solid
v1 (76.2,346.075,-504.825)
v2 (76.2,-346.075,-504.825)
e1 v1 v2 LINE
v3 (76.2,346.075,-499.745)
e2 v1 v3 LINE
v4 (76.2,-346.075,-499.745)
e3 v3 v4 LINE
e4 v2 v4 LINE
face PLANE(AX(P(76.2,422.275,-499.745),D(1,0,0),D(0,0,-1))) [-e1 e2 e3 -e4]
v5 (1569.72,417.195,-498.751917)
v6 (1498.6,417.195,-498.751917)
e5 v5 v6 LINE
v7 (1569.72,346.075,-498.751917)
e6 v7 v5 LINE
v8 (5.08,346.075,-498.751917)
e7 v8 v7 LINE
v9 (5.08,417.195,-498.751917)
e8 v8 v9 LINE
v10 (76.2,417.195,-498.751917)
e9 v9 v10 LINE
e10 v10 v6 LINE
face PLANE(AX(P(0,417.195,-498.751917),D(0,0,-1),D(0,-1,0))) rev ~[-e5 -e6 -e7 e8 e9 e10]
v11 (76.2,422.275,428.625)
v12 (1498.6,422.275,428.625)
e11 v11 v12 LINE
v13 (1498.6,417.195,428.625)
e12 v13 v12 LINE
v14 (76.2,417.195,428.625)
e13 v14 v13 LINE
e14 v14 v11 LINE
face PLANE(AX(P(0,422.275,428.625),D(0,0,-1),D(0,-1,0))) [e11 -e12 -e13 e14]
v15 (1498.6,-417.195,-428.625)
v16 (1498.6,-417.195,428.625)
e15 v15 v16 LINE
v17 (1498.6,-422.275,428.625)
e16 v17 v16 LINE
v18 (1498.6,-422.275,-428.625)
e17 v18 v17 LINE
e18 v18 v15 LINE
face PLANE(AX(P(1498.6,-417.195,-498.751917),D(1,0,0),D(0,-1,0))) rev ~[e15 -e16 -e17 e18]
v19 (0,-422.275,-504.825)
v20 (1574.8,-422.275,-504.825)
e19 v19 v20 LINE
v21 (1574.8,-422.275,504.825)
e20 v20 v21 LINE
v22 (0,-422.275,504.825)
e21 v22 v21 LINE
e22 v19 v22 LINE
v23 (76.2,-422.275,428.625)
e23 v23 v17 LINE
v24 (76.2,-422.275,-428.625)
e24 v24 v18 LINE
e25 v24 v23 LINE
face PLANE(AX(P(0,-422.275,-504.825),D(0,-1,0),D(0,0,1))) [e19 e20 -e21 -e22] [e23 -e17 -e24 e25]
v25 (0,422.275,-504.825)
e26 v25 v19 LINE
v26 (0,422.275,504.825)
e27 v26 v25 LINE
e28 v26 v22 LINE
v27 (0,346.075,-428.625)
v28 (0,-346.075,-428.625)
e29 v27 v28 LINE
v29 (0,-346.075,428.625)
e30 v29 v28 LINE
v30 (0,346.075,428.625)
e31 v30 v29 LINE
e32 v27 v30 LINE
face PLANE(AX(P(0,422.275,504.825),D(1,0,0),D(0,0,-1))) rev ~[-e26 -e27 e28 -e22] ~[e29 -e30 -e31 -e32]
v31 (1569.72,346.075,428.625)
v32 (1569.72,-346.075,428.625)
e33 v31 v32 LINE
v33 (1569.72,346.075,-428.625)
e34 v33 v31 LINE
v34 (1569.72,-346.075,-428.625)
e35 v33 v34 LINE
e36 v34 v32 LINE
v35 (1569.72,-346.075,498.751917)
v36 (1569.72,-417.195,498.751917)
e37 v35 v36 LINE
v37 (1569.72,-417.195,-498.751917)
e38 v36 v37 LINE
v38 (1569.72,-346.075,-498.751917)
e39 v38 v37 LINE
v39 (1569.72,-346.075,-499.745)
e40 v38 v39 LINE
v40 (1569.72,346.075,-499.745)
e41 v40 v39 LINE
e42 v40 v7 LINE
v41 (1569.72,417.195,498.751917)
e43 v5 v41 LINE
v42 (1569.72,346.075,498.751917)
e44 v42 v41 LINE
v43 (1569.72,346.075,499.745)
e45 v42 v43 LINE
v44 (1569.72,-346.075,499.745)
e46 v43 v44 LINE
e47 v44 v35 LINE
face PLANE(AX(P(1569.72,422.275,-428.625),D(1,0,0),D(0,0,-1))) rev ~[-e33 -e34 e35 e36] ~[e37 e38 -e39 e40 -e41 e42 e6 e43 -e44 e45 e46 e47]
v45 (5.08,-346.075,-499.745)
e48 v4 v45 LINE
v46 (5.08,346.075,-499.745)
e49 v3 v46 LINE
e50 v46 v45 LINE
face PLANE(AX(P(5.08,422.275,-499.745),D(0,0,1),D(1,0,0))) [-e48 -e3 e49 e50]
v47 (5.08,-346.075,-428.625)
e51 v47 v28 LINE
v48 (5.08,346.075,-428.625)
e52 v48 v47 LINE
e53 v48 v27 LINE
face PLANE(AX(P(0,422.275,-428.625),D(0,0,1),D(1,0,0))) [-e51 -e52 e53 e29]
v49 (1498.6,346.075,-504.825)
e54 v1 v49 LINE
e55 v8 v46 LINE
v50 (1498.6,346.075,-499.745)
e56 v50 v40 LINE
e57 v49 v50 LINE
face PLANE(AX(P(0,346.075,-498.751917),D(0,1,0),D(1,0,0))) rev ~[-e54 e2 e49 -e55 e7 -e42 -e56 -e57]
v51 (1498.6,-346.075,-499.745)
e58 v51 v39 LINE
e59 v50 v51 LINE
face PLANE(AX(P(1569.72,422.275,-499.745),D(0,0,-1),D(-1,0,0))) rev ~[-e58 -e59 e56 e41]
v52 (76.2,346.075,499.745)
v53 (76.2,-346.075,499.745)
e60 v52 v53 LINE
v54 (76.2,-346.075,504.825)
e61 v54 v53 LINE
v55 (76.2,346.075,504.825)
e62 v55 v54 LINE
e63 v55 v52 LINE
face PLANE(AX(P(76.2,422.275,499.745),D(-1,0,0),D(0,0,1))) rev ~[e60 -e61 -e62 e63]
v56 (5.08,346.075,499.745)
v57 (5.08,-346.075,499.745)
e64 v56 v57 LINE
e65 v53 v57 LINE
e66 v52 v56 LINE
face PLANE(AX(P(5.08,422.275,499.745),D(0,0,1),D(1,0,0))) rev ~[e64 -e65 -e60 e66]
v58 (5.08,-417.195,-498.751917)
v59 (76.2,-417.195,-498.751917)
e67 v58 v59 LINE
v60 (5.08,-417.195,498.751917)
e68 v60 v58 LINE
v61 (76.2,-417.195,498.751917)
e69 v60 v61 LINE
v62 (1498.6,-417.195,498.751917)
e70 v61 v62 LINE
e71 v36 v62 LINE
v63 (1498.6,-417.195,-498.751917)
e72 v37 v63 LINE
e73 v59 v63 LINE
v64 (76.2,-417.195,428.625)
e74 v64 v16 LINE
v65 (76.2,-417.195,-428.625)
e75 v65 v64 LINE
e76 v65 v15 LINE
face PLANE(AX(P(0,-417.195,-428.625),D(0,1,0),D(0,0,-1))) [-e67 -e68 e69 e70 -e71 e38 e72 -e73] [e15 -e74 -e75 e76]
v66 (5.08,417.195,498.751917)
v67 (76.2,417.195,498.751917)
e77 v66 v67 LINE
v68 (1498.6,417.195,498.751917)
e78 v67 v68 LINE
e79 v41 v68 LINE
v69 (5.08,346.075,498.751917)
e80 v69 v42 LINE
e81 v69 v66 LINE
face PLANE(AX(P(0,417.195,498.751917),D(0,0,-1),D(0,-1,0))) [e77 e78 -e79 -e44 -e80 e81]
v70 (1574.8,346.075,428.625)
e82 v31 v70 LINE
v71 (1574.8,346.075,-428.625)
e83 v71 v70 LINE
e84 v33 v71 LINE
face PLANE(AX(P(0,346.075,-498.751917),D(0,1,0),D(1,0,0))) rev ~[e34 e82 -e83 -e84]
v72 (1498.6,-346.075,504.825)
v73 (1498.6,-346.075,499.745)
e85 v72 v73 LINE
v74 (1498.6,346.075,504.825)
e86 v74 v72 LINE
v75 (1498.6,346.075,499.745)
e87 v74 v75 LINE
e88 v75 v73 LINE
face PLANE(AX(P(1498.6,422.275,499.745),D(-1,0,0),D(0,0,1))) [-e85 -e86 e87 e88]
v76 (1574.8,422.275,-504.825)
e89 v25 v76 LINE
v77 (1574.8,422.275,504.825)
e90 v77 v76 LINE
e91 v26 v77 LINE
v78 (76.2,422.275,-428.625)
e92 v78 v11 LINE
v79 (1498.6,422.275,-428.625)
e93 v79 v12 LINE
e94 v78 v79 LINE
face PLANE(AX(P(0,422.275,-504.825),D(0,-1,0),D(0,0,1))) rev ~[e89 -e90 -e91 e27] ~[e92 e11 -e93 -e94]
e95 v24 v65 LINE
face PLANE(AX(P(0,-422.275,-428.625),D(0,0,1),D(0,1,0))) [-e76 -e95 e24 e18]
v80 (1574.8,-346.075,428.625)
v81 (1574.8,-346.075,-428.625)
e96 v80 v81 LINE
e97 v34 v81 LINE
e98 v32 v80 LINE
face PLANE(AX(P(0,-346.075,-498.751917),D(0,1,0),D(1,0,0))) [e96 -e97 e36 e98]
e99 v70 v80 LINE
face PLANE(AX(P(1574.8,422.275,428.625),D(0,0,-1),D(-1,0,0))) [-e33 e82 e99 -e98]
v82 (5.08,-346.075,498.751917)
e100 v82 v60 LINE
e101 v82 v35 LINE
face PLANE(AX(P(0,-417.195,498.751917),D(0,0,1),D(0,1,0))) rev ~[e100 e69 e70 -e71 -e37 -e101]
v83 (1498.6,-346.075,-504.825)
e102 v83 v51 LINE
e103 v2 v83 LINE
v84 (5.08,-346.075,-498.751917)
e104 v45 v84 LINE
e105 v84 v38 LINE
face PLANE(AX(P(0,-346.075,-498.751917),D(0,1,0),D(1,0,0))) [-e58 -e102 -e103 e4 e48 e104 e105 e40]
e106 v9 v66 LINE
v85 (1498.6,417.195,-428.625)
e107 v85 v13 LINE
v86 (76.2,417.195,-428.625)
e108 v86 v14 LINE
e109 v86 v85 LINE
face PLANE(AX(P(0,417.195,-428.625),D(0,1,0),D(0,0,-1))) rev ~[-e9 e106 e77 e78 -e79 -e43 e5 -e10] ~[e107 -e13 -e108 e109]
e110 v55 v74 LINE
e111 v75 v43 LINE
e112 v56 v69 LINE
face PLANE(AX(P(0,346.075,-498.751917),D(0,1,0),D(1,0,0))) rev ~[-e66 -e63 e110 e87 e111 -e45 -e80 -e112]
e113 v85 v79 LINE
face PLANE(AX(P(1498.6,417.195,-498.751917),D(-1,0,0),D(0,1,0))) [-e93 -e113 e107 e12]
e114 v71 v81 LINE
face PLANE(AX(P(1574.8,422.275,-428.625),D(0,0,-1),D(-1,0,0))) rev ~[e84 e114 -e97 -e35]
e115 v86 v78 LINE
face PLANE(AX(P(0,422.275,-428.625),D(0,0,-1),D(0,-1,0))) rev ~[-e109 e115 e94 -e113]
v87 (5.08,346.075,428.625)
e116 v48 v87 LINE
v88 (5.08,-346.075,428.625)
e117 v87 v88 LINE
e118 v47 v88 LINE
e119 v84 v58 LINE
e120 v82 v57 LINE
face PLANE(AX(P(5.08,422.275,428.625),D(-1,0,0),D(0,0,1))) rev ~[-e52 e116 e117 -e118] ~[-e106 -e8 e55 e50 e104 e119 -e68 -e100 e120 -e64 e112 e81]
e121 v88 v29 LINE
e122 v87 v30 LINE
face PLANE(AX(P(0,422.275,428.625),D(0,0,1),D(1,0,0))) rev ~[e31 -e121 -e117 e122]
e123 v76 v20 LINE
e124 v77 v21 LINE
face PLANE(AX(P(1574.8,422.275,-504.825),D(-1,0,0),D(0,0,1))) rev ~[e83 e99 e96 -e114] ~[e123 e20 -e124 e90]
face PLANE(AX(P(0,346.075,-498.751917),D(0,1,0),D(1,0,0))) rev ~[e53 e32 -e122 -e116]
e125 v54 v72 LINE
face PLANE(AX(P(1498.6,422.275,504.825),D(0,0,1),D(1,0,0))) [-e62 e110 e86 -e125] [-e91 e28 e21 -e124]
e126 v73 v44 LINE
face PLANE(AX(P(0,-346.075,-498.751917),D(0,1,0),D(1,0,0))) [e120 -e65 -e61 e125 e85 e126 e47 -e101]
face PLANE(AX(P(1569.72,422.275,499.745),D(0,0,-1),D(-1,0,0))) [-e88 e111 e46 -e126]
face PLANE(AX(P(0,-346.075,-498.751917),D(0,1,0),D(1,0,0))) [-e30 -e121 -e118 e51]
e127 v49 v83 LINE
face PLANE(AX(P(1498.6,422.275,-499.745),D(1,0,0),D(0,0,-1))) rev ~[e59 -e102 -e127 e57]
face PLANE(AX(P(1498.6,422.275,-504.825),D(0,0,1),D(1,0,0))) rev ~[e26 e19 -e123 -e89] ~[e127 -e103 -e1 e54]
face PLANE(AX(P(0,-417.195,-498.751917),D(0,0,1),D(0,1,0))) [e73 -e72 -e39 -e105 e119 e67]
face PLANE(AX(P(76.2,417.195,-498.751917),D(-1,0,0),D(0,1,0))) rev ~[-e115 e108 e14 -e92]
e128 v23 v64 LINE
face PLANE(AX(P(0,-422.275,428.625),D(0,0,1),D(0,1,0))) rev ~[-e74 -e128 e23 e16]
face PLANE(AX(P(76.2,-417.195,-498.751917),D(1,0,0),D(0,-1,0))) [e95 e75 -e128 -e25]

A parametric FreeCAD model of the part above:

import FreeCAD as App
import Part
import Sketcher

V = App.Vector
Q = App.Units.Quantity


def add_polygon(sketch, points):
    """Adds a closed chain of lines whose ends are joined by coincident constraints."""
    first, n = sketch.GeometryCount, len(points)
    for a, b in zip(points, points[1:] + points[:1]):
        sketch.addGeometry(Part.LineSegment(App.Vector(*a, 0), App.Vector(*b, 0)), False)
    for i in range(n):
        sketch.addConstraint(Sketcher.Constraint("Coincident", first + i, 2, first + (i + 1) % n, 1))

doc = App.newDocument("Part")
params = doc.addObject("Spreadsheet::Sheet", "Params")
for row, (alias, value) in enumerate([
    ("sketch1_width", "3 in"),
    ("sketch1_width2", "0.2 in"),
    ("pad1_length", "62 in"),
    ("sketch2_width", "3 in"),
    ("sketch2_width2", "2.8 in"),
    ("pad2_length", "62 in"),
    ("sketch3_width", "3 in"),
    ("sketch3_width2", "2.8 in"),
    ("pad3_length", "62 in"),
    ("sketch4_width", "3 in"),
    ("sketch4_width2", "2.8 in"),
    ("pad4_length", "62 in"),
    ("sketch5_width", "3 in"),
    ("sketch5_width2", "2.8 in"),
    ("pad5_length", "997.503834 mm"),
    ("sketch6_width", "3 in"),
    ("sketch6_width2", "0.2 in"),
    ("pad6_length", "30.25 in"),
    ("sketch7_width", "3 in"),
    ("sketch7_width2", "2.8 in"),
    ("pad7_length", "30.25 in"),
    ("sketch8_width", "3 in"),
    ("sketch8_width2", "0.2 in"),
    ("pad8_length", "30.25 in"),
    ("sketch9_width", "3 in"),
    ("sketch9_width2", "2.8 in"),
    ("pad9_length", "30.25 in"),
], start=1):
    params.set(f"A{row}", alias)
    params.set(f"B{row}", "=" + value)
    params.setAlias(f"B{row}", alias)

body = doc.addObject("PartDesign::Body", "Body")

# Sketch on YZ plane
sketch1 = body.newObject("Sketcher::SketchObject", "Sketch")
sketch1.AttachmentSupport = (doc.getObject("YZ_Plane"), [""])
sketch1.MapMode = "FlatFace"
add_polygon(sketch1, [(-346.075, 504.825), (-422.275, 504.825), (-422.275, 428.625), (-417.195, 428.625), (-417.195, 498.751917), (-346.075, 498.751917)])  # lines 0-5
sketch1.addConstraint([
    Sketcher.Constraint("Horizontal", 0),
    Sketcher.Constraint("Vertical", 1),
    Sketcher.Constraint("Horizontal", 2),
    Sketcher.Constraint("Vertical", 3),
    Sketcher.Constraint("Horizontal", 4),
    Sketcher.Constraint("Vertical", 5),
    Sketcher.Constraint("Equal", 0, 1),
    Sketcher.Constraint("DistanceX", 0, 2, 0, 1, Q("3 in")),
    Sketcher.Constraint("DistanceX", 2, 1, 2, 2, Q("0.2 in")),
    Sketcher.Constraint("DistanceX", 0, 2, -1, 1, Q("16.625 in")),
    Sketcher.Constraint("DistanceY", -1, 1, 0, 2, Q("19.875 in")),
    Sketcher.Constraint("DistanceY", 3, 1, 3, 2, Q("70.126917 mm")),
])
sketch1.setExpression("Constraints[13]", "Params.sketch1_width")
sketch1.setExpression("Constraints[14]", "Params.sketch1_width2")
pad1 = body.newObject("PartDesign::Pad", "Pad")
pad1.Profile = sketch1
pad1.setExpression("Length", "Params.pad1_length")
body2 = doc.addObject("PartDesign::Body", "Body001")

# Sketch on YZ plane
sketch2 = body2.newObject("Sketcher::SketchObject", "Sketch001")
sketch2.AttachmentSupport = (doc.getObject("YZ_Plane001"), [""])
sketch2.MapMode = "FlatFace"
add_polygon(sketch2, [(-346.075, -498.751917), (-417.195, -498.751917), (-417.195, -428.625), (-422.275, -428.625), (-422.275, -504.825), (-346.075, -504.825)])  # lines 0-5
sketch2.addConstraint([
    Sketcher.Constraint("Horizontal", 0),
    Sketcher.Constraint("Vertical", 1),
    Sketcher.Constraint("Horizontal", 2),
    Sketcher.Constraint("Vertical", 3),
    Sketcher.Constraint("Horizontal", 4),
    Sketcher.Constraint("Vertical", 5),
    Sketcher.Constraint("Equal", 4, 3),
    Sketcher.Constraint("DistanceX", 4, 1, 4, 2, Q("3 in")),
    Sketcher.Constraint("DistanceX", 0, 2, 0, 1, Q("2.8 in")),
    Sketcher.Constraint("DistanceX", 0, 2, -1, 1, Q("16.425 in")),
    Sketcher.Constraint("DistanceY", 1, 2, -1, 1, Q("16.875 in")),
    Sketcher.Constraint("DistanceY", 1, 1, 1, 2, Q("70.126917 mm")),
])
sketch2.setExpression("Constraints[13]", "Params.sketch2_width")
sketch2.setExpression("Constraints[14]", "Params.sketch2_width2")
pad2 = body2.newObject("PartDesign::Pad", "Pad001")
pad2.Profile = sketch2
pad2.setExpression("Length", "Params.pad2_length")
body3 = doc.addObject("PartDesign::Body", "Body002")

# Sketch on YZ plane
sketch3 = body3.newObject("Sketcher::SketchObject", "Sketch002")
sketch3.AttachmentSupport = (doc.getObject("YZ_Plane002"), [""])
sketch3.MapMode = "FlatFace"
add_polygon(sketch3, [(417.195, -428.625), (417.195, -498.751917), (346.075, -498.751917), (346.075, -504.825), (422.275, -504.825), (422.275, -428.625)])  # lines 0-5
sketch3.addConstraint([
    Sketcher.Constraint("Vertical", 0),
    Sketcher.Constraint("Horizontal", 1),
    Sketcher.Constraint("Vertical", 2),
    Sketcher.Constraint("Horizontal", 3),
    Sketcher.Constraint("Vertical", 4),
    Sketcher.Constraint("Horizontal", 5),
    Sketcher.Constraint("Equal", 3, 4),
    Sketcher.Constraint("DistanceX", 3, 1, 3, 2, Q("3 in")),
    Sketcher.Constraint("DistanceX", 1, 2, 1, 1, Q("2.8 in")),
    Sketcher.Constraint("DistanceX", -1, 1, 0, 2, Q("16.425 in")),
    Sketcher.Constraint("DistanceY", 2, 2, -1, 1, Q("19.875 in")),
    Sketcher.Constraint("DistanceY", 0, 2, 0, 1, Q("70.126917 mm")),
])
sketch3.setExpression("Constraints[13]", "Params.sketch3_width")
sketch3.setExpression("Constraints[14]", "Params.sketch3_width2")
pad3 = body3.newObject("PartDesign::Pad", "Pad002")
pad3.Profile = sketch3
pad3.setExpression("Length", "Params.pad3_length")
body4 = doc.addObject("PartDesign::Body", "Body003")

# Sketch on YZ plane
sketch4 = body4.newObject("Sketcher::SketchObject", "Sketch003")
sketch4.AttachmentSupport = (doc.getObject("YZ_Plane003"), [""])
sketch4.MapMode = "FlatFace"
add_polygon(sketch4, [(346.075, 498.751917), (417.195, 498.751917), (417.195, 428.625), (422.275, 428.625), (422.275, 504.825), (346.075, 504.825)])  # lines 0-5
sketch4.addConstraint([
    Sketcher.Constraint("Horizontal", 0),
    Sketcher.Constraint("Vertical", 1),
    Sketcher.Constraint("Horizontal", 2),
    Sketcher.Constraint("Vertical", 3),
    Sketcher.Constraint("Horizontal", 4),
    Sketcher.Constraint("Vertical", 5),
    Sketcher.Constraint("Equal", 4, 3),
    Sketcher.Constraint("DistanceX", 4, 2, 4, 1, Q("3 in")),
    Sketcher.Constraint("DistanceX", 0, 1, 0, 2, Q("2.8 in")),
    Sketcher.Constraint("DistanceX", -1, 1, 0, 2, Q("16.425 in")),
    Sketcher.Constraint("DistanceY", -1, 1, 1, 2, Q("16.875 in")),
    Sketcher.Constraint("DistanceY", 1, 2, 1, 1, Q("70.126917 mm")),
])
sketch4.setExpression("Constraints[13]", "Params.sketch4_width")
sketch4.setExpression("Constraints[14]", "Params.sketch4_width2")
pad4 = body4.newObject("PartDesign::Pad", "Pad003")
pad4.Profile = sketch4
pad4.setExpression("Length", "Params.pad4_length")
body.AllowCompound = True
doc.recompute()

boolean = body.newObject("PartDesign::Boolean", "Boolean")
boolean.Type = "Fuse"
boolean.addObjects([body2])
doc.recompute()

boolean2 = body.newObject("PartDesign::Boolean", "Boolean001")
boolean2.Type = "Fuse"
boolean2.addObjects([body3])
doc.recompute()

boolean3 = body.newObject("PartDesign::Boolean", "Boolean002")
boolean3.Type = "Fuse"
boolean3.addObjects([body4])

# Sketch on XY plane
sketch5 = body.newObject("Sketcher::SketchObject", "Sketch004")
sketch5.AttachmentSupport = (doc.getObject("XY_Plane"), [""])
sketch5.MapMode = "FlatFace"
sketch5.AttachmentOffset = App.Placement(V(0, 0, -498.751917), App.Rotation())
add_polygon(sketch5, [(0, -346.075), (0, -422.275), (76.2, -422.275), (76.2, -417.195), (5.08, -417.195), (5.08, -346.075)])  # lines 0-5
add_polygon(sketch5, [(76.2, 422.275), (0, 422.275), (0, 346.075), (5.08, 346.075), (5.08, 417.195), (76.2, 417.195)])  # lines 6-11
add_polygon(sketch5, [(1574.8, 346.075), (1574.8, 422.275), (1498.6, 422.275), (1498.6, 417.195), (1569.72, 417.195), (1569.72, 346.075)])  # lines 12-17
add_polygon(sketch5, [(1498.6, -422.275), (1574.8, -422.275), (1574.8, -346.075), (1569.72, -346.075), (1569.72, -417.195), (1498.6, -417.195)])  # lines 18-23
sketch5.addConstraint([
    Sketcher.Constraint("Vertical", 0),
    Sketcher.Constraint("Horizontal", 1),
    Sketcher.Constraint("Vertical", 2),
    Sketcher.Constraint("Horizontal", 3),
    Sketcher.Constraint("Vertical", 4),
    Sketcher.Constraint("Horizontal", 5),
    Sketcher.Constraint("Horizontal", 6),
    Sketcher.Constraint("Vertical", 7),
    Sketcher.Constraint("Horizontal", 8),
    Sketcher.Constraint("Vertical", 9),
    Sketcher.Constraint("Horizontal", 10),
    Sketcher.Constraint("Vertical", 11),
    Sketcher.Constraint("Vertical", 12),
    Sketcher.Constraint("Horizontal", 13),
    Sketcher.Constraint("Vertical", 14),
    Sketcher.Constraint("Horizontal", 15),
    Sketcher.Constraint("Vertical", 16),
    Sketcher.Constraint("Horizontal", 17),
    Sketcher.Constraint("Horizontal", 18),
    Sketcher.Constraint("Vertical", 19),
    Sketcher.Constraint("Horizontal", 20),
    Sketcher.Constraint("Vertical", 21),
    Sketcher.Constraint("Horizontal", 22),
    Sketcher.Constraint("Vertical", 23),
    Sketcher.Constraint("Symmetric", 0, 2, 6, 2, -1, 1),
    Sketcher.Constraint("Symmetric", 5, 2, 7, 2, -1),
    Sketcher.Constraint("Symmetric", 3, 2, 9, 2, -1),
    Sketcher.Constraint("Symmetric", 12, 2, 18, 2, -1),
    Sketcher.Constraint("Symmetric", 16, 2, 20, 2, -1),
    Sketcher.Constraint("Symmetric", 14, 2, 22, 2, -1),
    Sketcher.Constraint("Horizontal", 11, 2, 12, 2),
    Sketcher.Constraint("Horizontal", 10, 2, 14, 2),
    Sketcher.Constraint("Horizontal", 8, 2, 16, 2),
    Sketcher.Constraint("Vertical", 2, 2, 10, 2),
    Sketcher.Constraint("Equal", 6, 13),
    Sketcher.Constraint("Equal", 10, 15),
    Sketcher.Constraint("Equal", 18, 0),
    Sketcher.Constraint("Equal", 20, 2),
    Sketcher.Constraint("DistanceX", 1, 1, 1, 2, Q("3 in")),
    Sketcher.Constraint("DistanceX", 3, 2, 3, 1, Q("2.8 in")),
    Sketcher.Constraint("DistanceX", -1, 1, 12, 2, Q("62 in")),
    Sketcher.Constraint("DistanceY", 5, 2, 6, 2, Q("30.25 in")),
])
sketch5.setExpression("Constraints[62]", "Params.sketch5_width")
sketch5.setExpression("Constraints[63]", "Params.sketch5_width2")
pad5 = body.newObject("PartDesign::Pad", "Pad004")
pad5.Profile = sketch5
pad5.setExpression("Length", "Params.pad5_length")

# Sketch on XZ plane
sketch6 = body.newObject("Sketcher::SketchObject", "Sketch005")
sketch6.AttachmentSupport = (doc.getObject("XZ_Plane"), [""])
sketch6.MapMode = "FlatFace"
sketch6.AttachmentOffset = App.Placement(V(0, 0, -16.625 * 25.4), App.Rotation())
add_polygon(sketch6, [(0, -504.825), (0, -428.625), (5.08, -428.625), (5.08, -499.745), (76.2, -499.745), (76.2, -504.825)])  # lines 0-5
sketch6.addConstraint([
    Sketcher.Constraint("Vertical", 0),
    Sketcher.Constraint("Horizontal", 1),
    Sketcher.Constraint("Vertical", 2),
    Sketcher.Constraint("Horizontal", 3),
    Sketcher.Constraint("Vertical", 4),
    Sketcher.Constraint("Horizontal", 5),
    Sketcher.Constraint("PointOnObject", 0, 2, -2),
    Sketcher.Constraint("Equal", 5, 0),
    Sketcher.Constraint("Equal", 3, 2),
    Sketcher.Constraint("DistanceX", 5, 2, 5, 1, Q("3 in")),
    Sketcher.Constraint("DistanceX", 1, 1, 1, 2, Q("0.2 in")),
    Sketcher.Constraint("DistanceY", 0, 2, -1, 1, Q("16.875 in")),
])
sketch6.setExpression("Constraints[15]", "Params.sketch6_width")
sketch6.setExpression("Constraints[16]", "Params.sketch6_width2")
pad6 = body.newObject("PartDesign::Pad", "Pad005")
pad6.Profile = sketch6
pad6.setExpression("Length", "Params.pad6_length")

# Sketch on XZ plane
sketch7 = body.newObject("Sketcher::SketchObject", "Sketch006")
sketch7.AttachmentSupport = (doc.getObject("XZ_Plane"), [""])
sketch7.MapMode = "FlatFace"
sketch7.AttachmentOffset = App.Placement(V(0, 0, -16.625 * 25.4), App.Rotation())
add_polygon(sketch7, [(0, 504.825), (76.2, 504.825), (76.2, 499.745), (5.08, 499.745), (5.08, 428.625), (0, 428.625)])  # lines 0-5
sketch7.addConstraint([
    Sketcher.Constraint("Horizontal", 0),
    Sketcher.Constraint("Vertical", 1),
    Sketcher.Constraint("Horizontal", 2),
    Sketcher.Constraint("Vertical", 3),
    Sketcher.Constraint("Horizontal", 4),
    Sketcher.Constraint("Vertical", 5),
    Sketcher.Constraint("PointOnObject", 4, 2, -2),
    Sketcher.Constraint("Equal", 4, 1),
    Sketcher.Constraint("Equal", 2, 3),
    Sketcher.Constraint("DistanceX", 0, 1, 0, 2, Q("3 in")),
    Sketcher.Constraint("DistanceX", 2, 2, 2, 1, Q("2.8 in")),
    Sketcher.Constraint("DistanceY", -1, 1, 0, 2, Q("19.875 in")),
])
sketch7.setExpression("Constraints[15]", "Params.sketch7_width")
sketch7.setExpression("Constraints[16]", "Params.sketch7_width2")
pad7 = body.newObject("PartDesign::Pad", "Pad006")
pad7.Profile = sketch7
pad7.setExpression("Length", "Params.pad7_length")

# Sketch on XZ plane
sketch8 = body.newObject("Sketcher::SketchObject", "Sketch007")
sketch8.AttachmentSupport = (doc.getObject("XZ_Plane"), [""])
sketch8.MapMode = "FlatFace"
sketch8.AttachmentOffset = App.Placement(V(0, 0, -16.625 * 25.4), App.Rotation())
add_polygon(sketch8, [(1574.8, 504.825), (1574.8, 428.625), (1569.72, 428.625), (1569.72, 499.745), (1498.6, 499.745), (1498.6, 504.825)])  # lines 0-5
sketch8.addConstraint([
    Sketcher.Constraint("Vertical", 0),
    Sketcher.Constraint("Horizontal", 1),
    Sketcher.Constraint("Vertical", 2),
    Sketcher.Constraint("Horizontal", 3),
    Sketcher.Constraint("Vertical", 4),
    Sketcher.Constraint("Horizontal", 5),
    Sketcher.Constraint("Equal", 5, 0),
    Sketcher.Constraint("Equal", 3, 2),
    Sketcher.Constraint("DistanceX", 5, 1, 5, 2, Q("3 in")),
    Sketcher.Constraint("DistanceX", 1, 2, 1, 1, Q("0.2 in")),
    Sketcher.Constraint("DistanceX", -1, 1, 0, 2, Q("62 in")),
    Sketcher.Constraint("DistanceY", -1, 1, 0, 2, Q("16.875 in")),
])
sketch8.setExpression("Constraints[14]", "Params.sketch8_width")
sketch8.setExpression("Constraints[15]", "Params.sketch8_width2")
pad8 = body.newObject("PartDesign::Pad", "Pad007")
pad8.Profile = sketch8
pad8.setExpression("Length", "Params.pad8_length")

# Sketch on XZ plane
sketch9 = body.newObject("Sketcher::SketchObject", "Sketch008")
sketch9.AttachmentSupport = (doc.getObject("XZ_Plane"), [""])
sketch9.MapMode = "FlatFace"
sketch9.AttachmentOffset = App.Placement(V(0, 0, -16.625 * 25.4), App.Rotation())
add_polygon(sketch9, [(1574.8, -504.825), (1498.6, -504.825), (1498.6, -499.745), (1569.72, -499.745), (1569.72, -428.625), (1574.8, -428.625)])  # lines 0-5
sketch9.addConstraint([
    Sketcher.Constraint("Horizontal", 0),
    Sketcher.Constraint("Vertical", 1),
    Sketcher.Constraint("Horizontal", 2),
    Sketcher.Constraint("Vertical", 3),
    Sketcher.Constraint("Horizontal", 4),
    Sketcher.Constraint("Vertical", 5),
    Sketcher.Constraint("Equal", 4, 1),
    Sketcher.Constraint("Equal", 2, 3),
    Sketcher.Constraint("DistanceX", 0, 2, 0, 1, Q("3 in")),
    Sketcher.Constraint("DistanceX", 2, 1, 2, 2, Q("2.8 in")),
    Sketcher.Constraint("DistanceX", -1, 1, 0, 2, Q("59 in")),
    Sketcher.Constraint("DistanceY", 0, 2, -1, 1, Q("19.875 in")),
])
sketch9.setExpression("Constraints[14]", "Params.sketch9_width")
sketch9.setExpression("Constraints[15]", "Params.sketch9_width2")
pad9 = body.newObject("PartDesign::Pad", "Pad008")
pad9.Profile = sketch9
pad9.setExpression("Length", "Params.pad9_length")

doc.recompute()
